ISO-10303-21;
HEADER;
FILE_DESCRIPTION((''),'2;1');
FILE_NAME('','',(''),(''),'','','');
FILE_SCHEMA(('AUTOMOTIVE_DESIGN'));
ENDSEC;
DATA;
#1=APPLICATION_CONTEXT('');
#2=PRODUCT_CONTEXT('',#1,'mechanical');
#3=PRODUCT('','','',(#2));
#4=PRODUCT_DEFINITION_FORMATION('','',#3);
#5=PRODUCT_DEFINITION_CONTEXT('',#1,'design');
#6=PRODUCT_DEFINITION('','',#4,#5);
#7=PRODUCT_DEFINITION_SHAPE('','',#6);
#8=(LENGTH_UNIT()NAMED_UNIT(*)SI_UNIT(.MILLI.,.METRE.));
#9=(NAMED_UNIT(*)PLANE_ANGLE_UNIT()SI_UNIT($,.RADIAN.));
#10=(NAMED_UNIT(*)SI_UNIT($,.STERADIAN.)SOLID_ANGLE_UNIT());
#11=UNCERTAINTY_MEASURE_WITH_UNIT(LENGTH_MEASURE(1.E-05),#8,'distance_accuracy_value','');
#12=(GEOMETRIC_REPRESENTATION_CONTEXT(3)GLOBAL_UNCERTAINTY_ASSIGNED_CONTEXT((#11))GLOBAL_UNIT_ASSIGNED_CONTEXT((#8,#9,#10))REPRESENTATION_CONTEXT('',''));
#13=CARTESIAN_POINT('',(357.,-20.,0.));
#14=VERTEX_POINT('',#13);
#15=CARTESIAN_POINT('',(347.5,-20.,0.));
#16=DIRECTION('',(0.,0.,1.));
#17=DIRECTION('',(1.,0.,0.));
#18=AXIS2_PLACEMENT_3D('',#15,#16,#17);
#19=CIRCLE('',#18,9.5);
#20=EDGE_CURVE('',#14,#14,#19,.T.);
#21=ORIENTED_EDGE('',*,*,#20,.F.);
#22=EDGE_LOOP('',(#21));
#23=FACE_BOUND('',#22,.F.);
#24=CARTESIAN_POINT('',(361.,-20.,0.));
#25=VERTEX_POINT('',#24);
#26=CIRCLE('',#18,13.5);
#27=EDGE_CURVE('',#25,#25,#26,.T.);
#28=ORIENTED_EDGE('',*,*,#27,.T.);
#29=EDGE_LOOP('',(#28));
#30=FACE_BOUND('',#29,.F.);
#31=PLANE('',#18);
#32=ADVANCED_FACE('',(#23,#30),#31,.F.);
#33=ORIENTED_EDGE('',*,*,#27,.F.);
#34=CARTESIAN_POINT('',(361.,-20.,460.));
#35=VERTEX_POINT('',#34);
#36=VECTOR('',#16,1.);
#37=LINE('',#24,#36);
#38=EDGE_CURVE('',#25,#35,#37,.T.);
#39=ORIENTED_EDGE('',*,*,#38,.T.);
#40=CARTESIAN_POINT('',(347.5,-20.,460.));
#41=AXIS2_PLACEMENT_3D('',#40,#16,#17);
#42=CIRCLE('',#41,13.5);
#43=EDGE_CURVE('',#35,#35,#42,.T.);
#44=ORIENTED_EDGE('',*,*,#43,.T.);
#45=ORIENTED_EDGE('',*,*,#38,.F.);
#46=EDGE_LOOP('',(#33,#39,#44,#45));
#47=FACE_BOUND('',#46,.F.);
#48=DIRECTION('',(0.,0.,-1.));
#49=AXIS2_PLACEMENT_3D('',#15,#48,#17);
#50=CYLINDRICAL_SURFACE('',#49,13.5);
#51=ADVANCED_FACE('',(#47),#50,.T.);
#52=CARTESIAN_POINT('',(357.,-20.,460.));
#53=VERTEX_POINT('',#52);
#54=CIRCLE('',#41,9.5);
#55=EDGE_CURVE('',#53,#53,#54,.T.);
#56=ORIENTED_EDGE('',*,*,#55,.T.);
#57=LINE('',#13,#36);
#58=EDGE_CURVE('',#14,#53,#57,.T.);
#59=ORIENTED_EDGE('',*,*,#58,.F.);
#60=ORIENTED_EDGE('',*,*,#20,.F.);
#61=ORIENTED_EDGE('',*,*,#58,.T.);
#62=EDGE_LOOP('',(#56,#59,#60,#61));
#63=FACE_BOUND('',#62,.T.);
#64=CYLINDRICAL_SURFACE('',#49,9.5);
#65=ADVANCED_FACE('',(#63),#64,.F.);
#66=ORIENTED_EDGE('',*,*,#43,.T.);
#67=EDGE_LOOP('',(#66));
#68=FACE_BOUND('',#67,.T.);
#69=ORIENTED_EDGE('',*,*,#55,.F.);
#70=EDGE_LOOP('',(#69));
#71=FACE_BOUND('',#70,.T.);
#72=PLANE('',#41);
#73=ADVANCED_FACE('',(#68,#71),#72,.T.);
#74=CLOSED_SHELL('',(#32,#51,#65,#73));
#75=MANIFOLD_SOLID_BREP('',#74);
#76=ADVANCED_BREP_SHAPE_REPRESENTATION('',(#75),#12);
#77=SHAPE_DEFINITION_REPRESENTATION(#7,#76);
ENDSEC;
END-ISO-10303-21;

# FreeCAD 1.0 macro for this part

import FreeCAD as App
import Part
import Sketcher
from FreeCAD import Vector

doc = App.newDocument("Part")
params = doc.addObject("Spreadsheet::Sheet", "Params")
for row, (alias, value) in enumerate([
    ("sketch1_diameter", "27 mm"),
    ("sketch1_diameter2", "19 mm"),
    ("pad1_length", "460 mm"),
], start=1):
    params.set(f"A{row}", alias)
    params.set(f"B{row}", "=" + value)
    params.setAlias(f"B{row}", alias)

body = doc.addObject("PartDesign::Body", "Body")

# Sketch on XY plane
sketch1 = doc.addObject("Sketcher::SketchObject", "Sketch")
body.addObject(sketch1)
sketch1.AttachmentSupport = (doc.XY_Plane, [""])
sketch1.MapMode = "FlatFace"
sketch1.addGeometry(Part.Circle(Vector(348, -20, 0), Vector(0, 0, 1), 14), False)
sketch1.addGeometry(Part.Circle(Vector(348, -20, 0), Vector(0, 0, 1), 10), False)
sketch1.addConstraint(Sketcher.Constraint("Coincident", 1, 3, 0, 3))
sketch1.addConstraint(Sketcher.Constraint("Diameter", 0, 27.0))
sketch1.addConstraint(Sketcher.Constraint("Diameter", 1, 19.0))
sketch1.addConstraint(Sketcher.Constraint("DistanceY", 0, 3, -1, 1, 20.0))
sketch1.addConstraint(Sketcher.Constraint("DistanceX", -1, 1, 0, 3, 347.5))
sketch1.setExpression("Constraints[1]", "Params.sketch1_diameter")
sketch1.setExpression("Constraints[2]", "Params.sketch1_diameter2")
pad1 = doc.addObject("PartDesign::Pad", "Pad")
body.addObject(pad1)
pad1.Profile = sketch1
pad1.setExpression("Length", "Params.pad1_length")

doc.recompute()
